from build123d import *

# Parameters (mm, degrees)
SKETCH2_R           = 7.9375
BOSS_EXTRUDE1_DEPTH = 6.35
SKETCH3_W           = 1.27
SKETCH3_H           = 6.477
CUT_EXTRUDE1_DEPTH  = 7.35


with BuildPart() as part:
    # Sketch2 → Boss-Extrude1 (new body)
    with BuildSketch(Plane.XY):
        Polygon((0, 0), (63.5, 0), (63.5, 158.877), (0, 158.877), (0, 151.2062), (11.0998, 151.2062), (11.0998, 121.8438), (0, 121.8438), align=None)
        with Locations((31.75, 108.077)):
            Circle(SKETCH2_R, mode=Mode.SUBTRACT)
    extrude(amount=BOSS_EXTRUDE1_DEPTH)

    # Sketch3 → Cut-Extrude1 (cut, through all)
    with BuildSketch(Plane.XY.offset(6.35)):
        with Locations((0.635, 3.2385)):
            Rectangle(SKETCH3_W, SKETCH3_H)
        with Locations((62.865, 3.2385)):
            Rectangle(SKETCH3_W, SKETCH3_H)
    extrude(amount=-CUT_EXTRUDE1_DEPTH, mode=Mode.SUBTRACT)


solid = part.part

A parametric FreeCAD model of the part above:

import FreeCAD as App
import Part
import Sketcher
from FreeCAD import Vector
Q = App.Units.Quantity


def add_polygon(sketch, points):
    """Adds a closed chain of lines whose ends are joined by coincident constraints."""
    first, n = sketch.GeometryCount, len(points)
    for a, b in zip(points, points[1:] + points[:1]):
        sketch.addGeometry(Part.LineSegment(App.Vector(*a, 0), App.Vector(*b, 0)), False)
    for i in range(n):
        sketch.addConstraint(Sketcher.Constraint("Coincident", first + i, 2, first + (i + 1) % n, 1))

doc = App.newDocument("Part")
body = doc.addObject("PartDesign::Body", "Body")

# Sketch on XY plane
sketch1 = body.newObject("Sketcher::SketchObject", "Sketch")
sketch1.AttachmentSupport = (doc.getObject("XY_Plane"), [""])
sketch1.MapMode = "FlatFace"
add_polygon(sketch1, [(0, 0), (63.5, 0), (63.5, 158.877), (0, 158.877), (0, 151.2062), (11.0998, 151.2062), (11.0998, 121.8438), (0, 121.8438)])  # lines 0-7
sketch1.addGeometry(Part.Circle(Vector(31.75, 108.077, 0), Vector(0, 0, 1), 7.9375), False)  # 8
sketch1.addConstraint(Sketcher.Constraint("Horizontal", 0))
sketch1.addConstraint(Sketcher.Constraint("Vertical", 1))
sketch1.addConstraint(Sketcher.Constraint("Horizontal", 2))
sketch1.addConstraint(Sketcher.Constraint("Vertical", 3))
sketch1.addConstraint(Sketcher.Constraint("Horizontal", 4))
sketch1.addConstraint(Sketcher.Constraint("Vertical", 5))
sketch1.addConstraint(Sketcher.Constraint("Horizontal", 6))
sketch1.addConstraint(Sketcher.Constraint("Vertical", 7))
sketch1.addConstraint(Sketcher.Constraint("Coincident", 7, 2, -1, 1))
sketch1.addConstraint(Sketcher.Constraint("PointOnObject", 2, 2, -2))
sketch1.addConstraint(Sketcher.Constraint("Diameter", 8, Q("0.625 in")))
sketch1.addConstraint(Sketcher.Constraint("DistanceX", 0, 1, 0, 2, Q("2.5 in")))
sketch1.addConstraint(Sketcher.Constraint("DistanceY", 8, 3, 1, 2, Q("2 in")))
sketch1.addConstraint(Sketcher.Constraint("DistanceX", 4, 1, 4, 2, Q("0.437 in")))
sketch1.addConstraint(Sketcher.Constraint("DistanceY", 1, 1, 1, 2, Q("6.255 in")))
sketch1.addConstraint(Sketcher.Constraint("DistanceY", 3, 2, 3, 1, Q("0.302 in")))
sketch1.addConstraint(Sketcher.Constraint("DistanceY", 5, 2, 5, 1, Q("1.156 in")))
sketch1.addConstraint(Sketcher.Constraint("DistanceX", -1, 1, 8, 3, Q("1.25 in")))
pad1 = body.newObject("PartDesign::Pad", "Pad")
pad1.Profile = sketch1
pad1.Length = Q("0.25 in")

# Sketch on XY plane
sketch2 = body.newObject("Sketcher::SketchObject", "Sketch001")
sketch2.AttachmentSupport = (doc.getObject("XY_Plane"), [""])
sketch2.MapMode = "FlatFace"
sketch2.AttachmentOffset = App.Placement(Vector(0, 0, 0.25 * 25.4), App.Rotation())
add_polygon(sketch2, [(0, 6.477), (0, 0), (1.27, 0), (1.27, 6.477)])  # lines 0-3
add_polygon(sketch2, [(62.23, 6.477), (62.23, 0), (63.5, 0), (63.5, 6.477)])  # lines 4-7
sketch2.addConstraint(Sketcher.Constraint("Vertical", 0))
sketch2.addConstraint(Sketcher.Constraint("Horizontal", 1))
sketch2.addConstraint(Sketcher.Constraint("Vertical", 2))
sketch2.addConstraint(Sketcher.Constraint("Horizontal", 3))
sketch2.addConstraint(Sketcher.Constraint("Vertical", 4))
sketch2.addConstraint(Sketcher.Constraint("Horizontal", 5))
sketch2.addConstraint(Sketcher.Constraint("Vertical", 6))
sketch2.addConstraint(Sketcher.Constraint("Horizontal", 7))
sketch2.addConstraint(Sketcher.Constraint("Coincident", 0, 2, -1, 1))
sketch2.addConstraint(Sketcher.Constraint("PointOnObject", 4, 2, -1))
sketch2.addConstraint(Sketcher.Constraint("Horizontal", 3, 2, 6, 2))
sketch2.addConstraint(Sketcher.Constraint("Equal", 3, 5))
sketch2.addConstraint(Sketcher.Constraint("DistanceX", 1, 1, 1, 2, Q("0.05 in")))
sketch2.addConstraint(Sketcher.Constraint("DistanceX", -1, 1, 5, 2, Q("2.5 in")))
sketch2.addConstraint(Sketcher.Constraint("DistanceY", 0, 2, 0, 1, Q("0.255 in")))
pocket1 = body.newObject("PartDesign::Pocket", "Pocket")
pocket1.Profile = sketch2
pocket1.Type = "ThroughAll"

doc.recompute()
